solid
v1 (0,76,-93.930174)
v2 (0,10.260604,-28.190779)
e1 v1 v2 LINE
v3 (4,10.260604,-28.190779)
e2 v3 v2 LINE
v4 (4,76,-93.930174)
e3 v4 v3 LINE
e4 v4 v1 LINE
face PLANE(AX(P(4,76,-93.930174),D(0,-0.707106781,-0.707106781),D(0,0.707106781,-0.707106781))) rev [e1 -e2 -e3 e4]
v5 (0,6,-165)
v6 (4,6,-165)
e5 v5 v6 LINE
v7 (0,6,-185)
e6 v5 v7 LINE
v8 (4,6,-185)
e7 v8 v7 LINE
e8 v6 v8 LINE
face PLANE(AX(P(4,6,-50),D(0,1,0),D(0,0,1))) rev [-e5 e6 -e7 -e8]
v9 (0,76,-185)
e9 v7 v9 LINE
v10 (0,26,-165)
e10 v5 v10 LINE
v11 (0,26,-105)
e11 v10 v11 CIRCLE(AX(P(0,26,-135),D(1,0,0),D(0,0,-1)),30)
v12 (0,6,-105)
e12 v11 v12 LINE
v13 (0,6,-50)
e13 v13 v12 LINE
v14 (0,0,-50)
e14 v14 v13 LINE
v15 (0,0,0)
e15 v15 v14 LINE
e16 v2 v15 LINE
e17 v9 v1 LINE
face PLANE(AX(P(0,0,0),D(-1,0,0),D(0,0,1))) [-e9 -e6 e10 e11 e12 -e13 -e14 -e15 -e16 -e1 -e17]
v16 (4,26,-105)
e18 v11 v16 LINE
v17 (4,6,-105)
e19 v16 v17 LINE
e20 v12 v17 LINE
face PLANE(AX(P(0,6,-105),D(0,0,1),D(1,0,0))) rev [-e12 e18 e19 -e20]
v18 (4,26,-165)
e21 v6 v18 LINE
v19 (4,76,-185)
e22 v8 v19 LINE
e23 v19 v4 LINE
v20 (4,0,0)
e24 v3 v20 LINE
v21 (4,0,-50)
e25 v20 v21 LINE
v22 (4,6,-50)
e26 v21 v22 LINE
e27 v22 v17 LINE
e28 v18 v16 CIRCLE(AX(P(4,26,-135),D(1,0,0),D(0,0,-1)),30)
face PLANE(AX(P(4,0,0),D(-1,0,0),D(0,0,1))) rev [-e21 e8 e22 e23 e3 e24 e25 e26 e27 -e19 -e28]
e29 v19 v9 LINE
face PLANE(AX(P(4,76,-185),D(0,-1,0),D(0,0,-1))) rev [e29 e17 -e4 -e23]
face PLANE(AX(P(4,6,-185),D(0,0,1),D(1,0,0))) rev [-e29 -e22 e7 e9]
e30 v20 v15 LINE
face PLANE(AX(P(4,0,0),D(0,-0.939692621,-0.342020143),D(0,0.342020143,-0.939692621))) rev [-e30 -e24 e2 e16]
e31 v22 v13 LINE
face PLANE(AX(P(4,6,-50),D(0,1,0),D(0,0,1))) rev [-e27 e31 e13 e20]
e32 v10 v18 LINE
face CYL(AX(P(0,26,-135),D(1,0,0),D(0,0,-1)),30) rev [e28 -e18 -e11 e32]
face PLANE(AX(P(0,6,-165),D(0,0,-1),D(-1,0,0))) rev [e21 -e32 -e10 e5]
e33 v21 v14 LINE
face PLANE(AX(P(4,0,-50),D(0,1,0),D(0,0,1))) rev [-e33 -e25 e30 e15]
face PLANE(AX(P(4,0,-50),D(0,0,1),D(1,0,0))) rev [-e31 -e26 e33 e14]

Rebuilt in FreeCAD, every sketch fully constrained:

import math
import FreeCAD as App
import Part
import Sketcher
from FreeCAD import Vector
Q = App.Units.Quantity

doc = App.newDocument("Part")
body = doc.addObject("PartDesign::Body", "Body")

sketch1 = body.newObject("Sketcher::SketchObject", "Sketch")
sketch1.AttachmentSupport = (doc.getObject("YZ_Plane"), [""])
sketch1.MapMode = "FlatFace"
sketch1.addGeometry([
    Part.LineSegment(Vector(10.260604, -28.190779, 0), Vector(0, 0, 0)),
    Part.LineSegment(Vector(0, 0, 0), Vector(0, -50, 0)),
    Part.LineSegment(Vector(0, -50, 0), Vector(6, -50, 0)),
    Part.LineSegment(Vector(6, -50, 0), Vector(6, -185, 0)),
    Part.LineSegment(Vector(6, -185, 0), Vector(76, -185, 0)),
    Part.LineSegment(Vector(76, -185, 0), Vector(76, -93.930174, 0)),
    Part.LineSegment(Vector(76, -93.930174, 0), Vector(10.260604, -28.190779, 0)),
], False)
sketch1.addConstraint([
    Sketcher.Constraint("Coincident", 0, 2, 1, 1),
    Sketcher.Constraint("Coincident", 1, 2, 2, 1),
    Sketcher.Constraint("Coincident", 2, 2, 3, 1),
    Sketcher.Constraint("Coincident", 3, 2, 4, 1),
    Sketcher.Constraint("Coincident", 4, 2, 5, 1),
    Sketcher.Constraint("Coincident", 5, 2, 6, 1),
    Sketcher.Constraint("Coincident", 6, 2, 0, 1),
    Sketcher.Constraint("Vertical", 1),
    Sketcher.Constraint("Horizontal", 2),
    Sketcher.Constraint("Vertical", 3),
    Sketcher.Constraint("Horizontal", 4),
    Sketcher.Constraint("Vertical", 5),
    Sketcher.Constraint("Coincident", 0, 2, -1, 1),
    Sketcher.Constraint("DistanceX", 2, 1, 2, 2, 6.0),
    Sketcher.Constraint("DistanceX", 4, 1, 4, 2, 70.0),
    Sketcher.Constraint("DistanceY", 1, 2, 1, 1, 50.0),
    Sketcher.Constraint("DistanceY", 3, 2, 3, 1, 135.0),
    Sketcher.Constraint("Angle", 0, Q("110 deg")),
    Sketcher.Constraint("Angle", 6, Q("135 deg")),
    Sketcher.Constraint("Distance", 0, 30.0),
])
pad1 = body.newObject("PartDesign::Pad", "Pad")
pad1.Profile = sketch1
pad1.Length = 4

sketch2 = body.newObject("Sketcher::SketchObject", "Sketch001")
sketch2.AttachmentSupport = (doc.getObject("YZ_Plane"), [""])
sketch2.MapMode = "FlatFace"
sketch2.AttachmentOffset = App.Placement(Vector(0, 0, 4), App.Rotation())
sketch2.addGeometry([
    Part.LineSegment(Vector(6, -105, 0), Vector(6, -165, 0)),
    Part.LineSegment(Vector(6, -165, 0), Vector(26, -165, 0)),
    Part.ArcOfCircle(Part.Circle(Vector(26, -135, 0), Vector(0, 0, 1), 30), math.radians(-90), math.radians(90)),
    Part.LineSegment(Vector(26, -105, 0), Vector(6, -105, 0)),
], False)
sketch2.addConstraint([
    Sketcher.Constraint("Coincident", 0, 2, 1, 1),
    Sketcher.Constraint("Tangent", 1, 2, 2, 1),
    Sketcher.Constraint("Tangent", 2, 2, 3, 1),
    Sketcher.Constraint("Coincident", 3, 2, 0, 1),
    Sketcher.Constraint("Vertical", 0),
    Sketcher.Constraint("Horizontal", 1),
    Sketcher.Constraint("Horizontal", 3),
    Sketcher.Constraint("Radius", 2, 30.0),
    Sketcher.Constraint("DistanceX", 1, 1, 1, 2, 20.0),
    Sketcher.Constraint("DistanceX", -1, 1, 2, 3, 26.0),
    Sketcher.Constraint("DistanceY", 2, 3, -1, 1, 135.0),
])
pocket1 = body.newObject("PartDesign::Pocket", "Pocket")
pocket1.Profile = sketch2
pocket1.Length = 4

doc.recompute()
